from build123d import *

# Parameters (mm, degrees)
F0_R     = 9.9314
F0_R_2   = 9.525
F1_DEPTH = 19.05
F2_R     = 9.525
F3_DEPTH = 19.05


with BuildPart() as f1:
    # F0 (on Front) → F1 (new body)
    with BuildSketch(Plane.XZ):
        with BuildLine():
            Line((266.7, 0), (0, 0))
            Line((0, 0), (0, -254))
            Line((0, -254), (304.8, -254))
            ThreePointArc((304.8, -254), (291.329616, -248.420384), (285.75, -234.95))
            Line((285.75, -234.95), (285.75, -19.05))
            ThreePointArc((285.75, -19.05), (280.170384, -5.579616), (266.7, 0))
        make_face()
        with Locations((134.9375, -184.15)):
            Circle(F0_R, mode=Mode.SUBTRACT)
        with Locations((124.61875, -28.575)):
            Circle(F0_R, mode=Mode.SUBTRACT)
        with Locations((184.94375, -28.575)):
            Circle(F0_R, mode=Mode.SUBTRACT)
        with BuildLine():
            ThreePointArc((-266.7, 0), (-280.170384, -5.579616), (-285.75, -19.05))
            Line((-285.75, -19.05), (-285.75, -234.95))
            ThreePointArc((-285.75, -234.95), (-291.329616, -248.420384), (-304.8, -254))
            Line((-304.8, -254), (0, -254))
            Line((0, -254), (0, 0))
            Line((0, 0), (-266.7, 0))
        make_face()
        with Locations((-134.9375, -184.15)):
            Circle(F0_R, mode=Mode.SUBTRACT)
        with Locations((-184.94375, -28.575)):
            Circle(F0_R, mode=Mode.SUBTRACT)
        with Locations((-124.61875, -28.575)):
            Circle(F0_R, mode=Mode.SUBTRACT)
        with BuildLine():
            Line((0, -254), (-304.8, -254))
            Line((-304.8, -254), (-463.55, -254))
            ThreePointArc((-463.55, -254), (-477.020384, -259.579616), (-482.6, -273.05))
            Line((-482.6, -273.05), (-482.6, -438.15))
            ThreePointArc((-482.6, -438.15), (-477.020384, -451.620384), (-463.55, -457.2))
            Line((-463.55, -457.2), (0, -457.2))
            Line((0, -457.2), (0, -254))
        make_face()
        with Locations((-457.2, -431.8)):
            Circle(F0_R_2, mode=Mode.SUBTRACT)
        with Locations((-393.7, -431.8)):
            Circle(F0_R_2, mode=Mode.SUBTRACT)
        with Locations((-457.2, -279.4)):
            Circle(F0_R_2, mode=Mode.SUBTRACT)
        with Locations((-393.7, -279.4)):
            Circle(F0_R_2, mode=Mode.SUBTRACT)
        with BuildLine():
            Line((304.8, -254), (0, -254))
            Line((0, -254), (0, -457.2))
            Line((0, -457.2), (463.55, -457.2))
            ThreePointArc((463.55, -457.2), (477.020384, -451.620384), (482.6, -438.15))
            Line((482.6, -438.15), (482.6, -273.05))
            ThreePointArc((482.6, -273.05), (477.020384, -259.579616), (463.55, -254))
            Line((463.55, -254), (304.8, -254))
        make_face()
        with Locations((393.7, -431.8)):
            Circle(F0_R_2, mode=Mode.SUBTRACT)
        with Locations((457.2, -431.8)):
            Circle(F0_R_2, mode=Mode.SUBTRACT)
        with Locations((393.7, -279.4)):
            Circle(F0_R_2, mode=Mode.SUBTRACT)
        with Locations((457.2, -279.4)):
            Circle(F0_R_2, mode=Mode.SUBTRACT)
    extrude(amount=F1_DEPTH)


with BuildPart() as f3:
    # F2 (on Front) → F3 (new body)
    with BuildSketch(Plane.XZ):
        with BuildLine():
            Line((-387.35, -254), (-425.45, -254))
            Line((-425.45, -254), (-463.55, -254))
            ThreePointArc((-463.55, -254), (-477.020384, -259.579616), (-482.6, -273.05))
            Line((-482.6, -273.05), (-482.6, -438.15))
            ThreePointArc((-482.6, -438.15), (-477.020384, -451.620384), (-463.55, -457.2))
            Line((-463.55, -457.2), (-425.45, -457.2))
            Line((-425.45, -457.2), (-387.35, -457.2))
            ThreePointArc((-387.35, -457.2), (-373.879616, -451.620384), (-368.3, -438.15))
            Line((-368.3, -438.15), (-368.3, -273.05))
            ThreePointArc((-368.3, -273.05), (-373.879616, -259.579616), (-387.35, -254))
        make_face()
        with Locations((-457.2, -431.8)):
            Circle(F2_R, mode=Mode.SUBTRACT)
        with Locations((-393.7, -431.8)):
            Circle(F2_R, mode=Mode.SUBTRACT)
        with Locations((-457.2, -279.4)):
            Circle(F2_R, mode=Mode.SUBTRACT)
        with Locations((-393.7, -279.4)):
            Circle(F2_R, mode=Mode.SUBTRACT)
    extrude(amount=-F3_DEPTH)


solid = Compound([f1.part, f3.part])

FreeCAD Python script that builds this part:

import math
import FreeCAD as App
import Part
import Sketcher

V = App.Vector
Q = App.Units.Quantity

doc = App.newDocument("Part")
params = doc.addObject("Spreadsheet::Sheet", "Params")
for row, (alias, value) in enumerate([
    ("sketch1_diameter", "0.75 in"),
    ("sketch1_width", "21 in"),
    ("sketch1_radius", "0.75 in"),
    ("sketch1_diameter2", "0.782 in"),
    ("sketch1_width2", "36.5 in"),
    ("pad1_length", "0.75 in"),
    ("sketch2_diameter", "0.75 in"),
    ("sketch2_width", "3 in"),
    ("sketch2_radius", "0.75 in"),
    ("sketch2_height", "6.5 in"),
    ("pad2_length", "0.75 in"),
], start=1):
    params.set(f"A{row}", alias)
    params.set(f"B{row}", "=" + value)
    params.setAlias(f"B{row}", alias)

body = doc.addObject("PartDesign::Body", "Body")

sketch1 = doc.addObject("Sketcher::SketchObject", "Sketch")
body.addObject(sketch1)
sketch1.AttachmentSupport = (doc.XZ_Plane, [""])
sketch1.MapMode = "FlatFace"
sketch1.addGeometry(Part.LineSegment(V(266.7, 0, 0), V(-266.7, 0, 0)), False)
sketch1.addGeometry(Part.ArcOfCircle(Part.Circle(V(-266.699999, -19.050001, 0), V(0, 0, 1), 19.050001), math.radians(90.000002), math.radians(179.999998)), False)
sketch1.addGeometry(Part.LineSegment(V(-285.75, -19.05, 0), V(-285.75, -234.95, 0)), False)
sketch1.addGeometry(Part.ArcOfCircle(Part.Circle(V(-304.800001, -234.949999, 0), V(0, 0, 1), 19.050001), math.radians(-89.999998), math.radians(-0.000002)), False)
sketch1.addGeometry(Part.LineSegment(V(-304.8, -254, 0), V(-463.55, -254, 0)), False)
sketch1.addGeometry(Part.ArcOfCircle(Part.Circle(V(-463.549999, -273.050001, 0), V(0, 0, 1), 19.050001), math.radians(90.000002), math.radians(179.999998)), False)
sketch1.addGeometry(Part.LineSegment(V(-482.6, -273.05, 0), V(-482.6, -438.15, 0)), False)
sketch1.addGeometry(Part.ArcOfCircle(Part.Circle(V(-463.549999, -438.149999, 0), V(0, 0, 1), 19.050001), math.radians(-179.999998), math.radians(-90.000002)), False)
sketch1.addGeometry(Part.LineSegment(V(-463.55, -457.2, 0), V(463.55, -457.2, 0)), False)
sketch1.addGeometry(Part.ArcOfCircle(Part.Circle(V(463.549999, -438.149999, 0), V(0, 0, 1), 19.050001), math.radians(-89.999998), math.radians(-0.000002)), False)
sketch1.addGeometry(Part.LineSegment(V(482.6, -438.15, 0), V(482.6, -273.05, 0)), False)
sketch1.addGeometry(Part.ArcOfCircle(Part.Circle(V(463.549999, -273.050001, 0), V(0, 0, 1), 19.050001), math.radians(0.000002), math.radians(89.999998)), False)
sketch1.addGeometry(Part.LineSegment(V(463.55, -254, 0), V(304.8, -254, 0)), False)
sketch1.addGeometry(Part.ArcOfCircle(Part.Circle(V(304.800001, -234.949999, 0), V(0, 0, 1), 19.050001), math.radians(-179.999998), math.radians(-90.000002)), False)
sketch1.addGeometry(Part.LineSegment(V(285.75, -234.95, 0), V(285.75, -19.05, 0)), False)
sketch1.addGeometry(Part.ArcOfCircle(Part.Circle(V(266.699999, -19.050001, 0), V(0, 0, 1), 19.050001), math.radians(0.000002), math.radians(89.999998)), False)
sketch1.addGeometry(Part.Circle(V(-457.2, -431.8, 0), V(0, 0, 1), 9.525), False)
sketch1.addGeometry(Part.Circle(V(-393.7, -431.8, 0), V(0, 0, 1), 9.525), False)
sketch1.addGeometry(Part.Circle(V(-457.2, -279.4, 0), V(0, 0, 1), 9.525), False)
sketch1.addGeometry(Part.Circle(V(-393.7, -279.4, 0), V(0, 0, 1), 9.525), False)
sketch1.addGeometry(Part.Circle(V(393.7, -431.8, 0), V(0, 0, 1), 9.525), False)
sketch1.addGeometry(Part.Circle(V(457.2, -431.8, 0), V(0, 0, 1), 9.525), False)
sketch1.addGeometry(Part.Circle(V(393.7, -279.4, 0), V(0, 0, 1), 9.525), False)
sketch1.addGeometry(Part.Circle(V(457.2, -279.4, 0), V(0, 0, 1), 9.525), False)
sketch1.addGeometry(Part.Circle(V(-134.9375, -184.15, 0), V(0, 0, 1), 9.9314), False)
sketch1.addGeometry(Part.Circle(V(-184.94375, -28.575, 0), V(0, 0, 1), 9.9314), False)
sketch1.addGeometry(Part.Circle(V(-124.61875, -28.575, 0), V(0, 0, 1), 9.9314), False)
sketch1.addGeometry(Part.Circle(V(134.9375, -184.15, 0), V(0, 0, 1), 9.9314), False)
sketch1.addGeometry(Part.Circle(V(124.61875, -28.575, 0), V(0, 0, 1), 9.9314), False)
sketch1.addGeometry(Part.Circle(V(184.94375, -28.575, 0), V(0, 0, 1), 9.9314), False)
sketch1.addConstraint(Sketcher.Constraint("Tangent", 0, 2, 1, 1))
sketch1.addConstraint(Sketcher.Constraint("Tangent", 1, 2, 2, 1))
sketch1.addConstraint(Sketcher.Constraint("Tangent", 2, 2, 3, 2))
sketch1.addConstraint(Sketcher.Constraint("Tangent", 3, 1, 4, 1))
sketch1.addConstraint(Sketcher.Constraint("Tangent", 4, 2, 5, 1))
sketch1.addConstraint(Sketcher.Constraint("Tangent", 5, 2, 6, 1))
sketch1.addConstraint(Sketcher.Constraint("Tangent", 6, 2, 7, 1))
sketch1.addConstraint(Sketcher.Constraint("Tangent", 7, 2, 8, 1))
sketch1.addConstraint(Sketcher.Constraint("Tangent", 8, 2, 9, 1))
sketch1.addConstraint(Sketcher.Constraint("Tangent", 9, 2, 10, 1))
sketch1.addConstraint(Sketcher.Constraint("Tangent", 10, 2, 11, 1))
sketch1.addConstraint(Sketcher.Constraint("Tangent", 11, 2, 12, 1))
sketch1.addConstraint(Sketcher.Constraint("Tangent", 12, 2, 13, 2))
sketch1.addConstraint(Sketcher.Constraint("Tangent", 13, 1, 14, 1))
sketch1.addConstraint(Sketcher.Constraint("Tangent", 14, 2, 15, 1))
sketch1.addConstraint(Sketcher.Constraint("Tangent", 15, 2, 0, 1))
sketch1.addConstraint(Sketcher.Constraint("Horizontal", 0))
sketch1.addConstraint(Sketcher.Constraint("Vertical", 2))
sketch1.addConstraint(Sketcher.Constraint("Horizontal", 4))
sketch1.addConstraint(Sketcher.Constraint("Vertical", 6))
sketch1.addConstraint(Sketcher.Constraint("Horizontal", 8))
sketch1.addConstraint(Sketcher.Constraint("Vertical", 10))
sketch1.addConstraint(Sketcher.Constraint("Horizontal", 12))
sketch1.addConstraint(Sketcher.Constraint("Vertical", 14))
sketch1.addConstraint(Sketcher.Constraint("Equal", 1, 3))
sketch1.addConstraint(Sketcher.Constraint("Equal", 3, 5))
sketch1.addConstraint(Sketcher.Constraint("Equal", 5, 7))
sketch1.addConstraint(Sketcher.Constraint("Equal", 7, 9))
sketch1.addConstraint(Sketcher.Constraint("Equal", 9, 11))
sketch1.addConstraint(Sketcher.Constraint("Equal", 11, 13))
sketch1.addConstraint(Sketcher.Constraint("Equal", 13, 15))
sketch1.addConstraint(Sketcher.Constraint("Equal", 16, 17))
sketch1.addConstraint(Sketcher.Constraint("Equal", 17, 18))
sketch1.addConstraint(Sketcher.Constraint("Equal", 18, 19))
sketch1.addConstraint(Sketcher.Constraint("Equal", 19, 20))
sketch1.addConstraint(Sketcher.Constraint("Equal", 20, 21))
sketch1.addConstraint(Sketcher.Constraint("Equal", 21, 22))
sketch1.addConstraint(Sketcher.Constraint("Equal", 22, 23))
sketch1.addConstraint(Sketcher.Constraint("Equal", 24, 25))
sketch1.addConstraint(Sketcher.Constraint("Equal", 25, 26))
sketch1.addConstraint(Sketcher.Constraint("Equal", 26, 27))
sketch1.addConstraint(Sketcher.Constraint("Equal", 27, 28))
sketch1.addConstraint(Sketcher.Constraint("Equal", 28, 29))
sketch1.addConstraint(Sketcher.Constraint("Symmetric", 0, 2, 15, 2, -1, 1))
sketch1.addConstraint(Sketcher.Constraint("Symmetric", 5, 3, 11, 3, -2))
sketch1.addConstraint(Sketcher.Constraint("Symmetric", 17, 3, 20, 3, -2))
sketch1.addConstraint(Sketcher.Constraint("Symmetric", 16, 3, 21, 3, -2))
sketch1.addConstraint(Sketcher.Constraint("Symmetric", 19, 3, 22, 3, -2))
sketch1.addConstraint(Sketcher.Constraint("Symmetric", 18, 3, 23, 3, -2))
sketch1.addConstraint(Sketcher.Constraint("Symmetric", 24, 3, 27, 3, -2))
sketch1.addConstraint(Sketcher.Constraint("Symmetric", 26, 3, 28, 3, -2))
sketch1.addConstraint(Sketcher.Constraint("Symmetric", 25, 3, 29, 3, -2))
sketch1.addConstraint(Sketcher.Constraint("Horizontal", 16, 3, 17, 3))
sketch1.addConstraint(Sketcher.Constraint("Horizontal", 18, 3, 19, 3))
sketch1.addConstraint(Sketcher.Constraint("Horizontal", 25, 3, 26, 3))
sketch1.addConstraint(Sketcher.Constraint("Vertical", 16, 3, 18, 3))
sketch1.addConstraint(Sketcher.Constraint("Vertical", 17, 3, 19, 3))
sketch1.addConstraint(Sketcher.Constraint("Diameter", 16, Q("0.75 in")))
sketch1.addConstraint(Sketcher.Constraint("DistanceX", 0, 2, 0, 1, Q("21 in")))
sketch1.addConstraint(Sketcher.Constraint("Radius", 1, Q("0.75 in")))
sketch1.addConstraint(Sketcher.Constraint("Diameter", 24, Q("0.782 in")))
sketch1.addConstraint(Sketcher.Constraint("DistanceX", 8, 1, 8, 2, Q("36.5 in")))
sketch1.addConstraint(Sketcher.Constraint("DistanceY", 2, 2, 2, 1, Q("8.5 in")))
sketch1.addConstraint(Sketcher.Constraint("DistanceY", 6, 2, 6, 1, Q("6.5 in")))
sketch1.addConstraint(Sketcher.Constraint("DistanceX", 16, 3, -1, 1, Q("18 in")))
sketch1.addConstraint(Sketcher.Constraint("DistanceY", 16, 3, -1, 1, Q("17 in")))
sketch1.addConstraint(Sketcher.Constraint("DistanceY", 18, 3, -1, 1, Q("11 in")))
sketch1.addConstraint(Sketcher.Constraint("DistanceX", 17, 3, 1, 3, Q("5 in")))
sketch1.addConstraint(Sketcher.Constraint("DistanceY", 3, 3, 24, 3, Q("2 in")))
sketch1.addConstraint(Sketcher.Constraint("DistanceX", 24, 3, -1, 1, Q("5.3125 in")))
sketch1.addConstraint(Sketcher.Constraint("DistanceX", 25, 3, -1, 1, Q("7.28125 in")))
sketch1.addConstraint(Sketcher.Constraint("DistanceY", 25, 3, -1, 1, Q("1.125 in")))
sketch1.addConstraint(Sketcher.Constraint("DistanceX", 26, 3, -1, 1, Q("4.90625 in")))
sketch1.setExpression("Constraints[57]", "Params.sketch1_diameter")
sketch1.setExpression("Constraints[58]", "Params.sketch1_width")
sketch1.setExpression("Constraints[59]", "Params.sketch1_radius")
sketch1.setExpression("Constraints[60]", "Params.sketch1_diameter2")
sketch1.setExpression("Constraints[61]", "Params.sketch1_width2")
pad1 = doc.addObject("PartDesign::Pad", "Pad")
body.addObject(pad1)
pad1.Profile = sketch1
pad1.setExpression("Length", "Params.pad1_length")
body2 = doc.addObject("PartDesign::Body", "Body001")

sketch2 = doc.addObject("Sketcher::SketchObject", "Sketch001")
body2.addObject(sketch2)
sketch2.AttachmentSupport = (doc.getObject("XZ_Plane001"), [""])
sketch2.MapMode = "FlatFace"
sketch2.addGeometry(Part.LineSegment(V(-387.35, -254, 0), V(-463.55, -254, 0)), False)
sketch2.addGeometry(Part.ArcOfCircle(Part.Circle(V(-463.549999, -273.050001, 0), V(0, 0, 1), 19.050001), math.radians(90.000002), math.radians(179.999998)), False)
sketch2.addGeometry(Part.LineSegment(V(-482.6, -273.05, 0), V(-482.6, -438.15, 0)), False)
sketch2.addGeometry(Part.ArcOfCircle(Part.Circle(V(-463.549999, -438.149999, 0), V(0, 0, 1), 19.050001), math.radians(-179.999998), math.radians(-90.000002)), False)
sketch2.addGeometry(Part.LineSegment(V(-463.55, -457.2, 0), V(-387.35, -457.2, 0)), False)
sketch2.addGeometry(Part.ArcOfCircle(Part.Circle(V(-387.350001, -438.149999, 0), V(0, 0, 1), 19.050001), math.radians(-89.999998), math.radians(-0.000002)), False)
sketch2.addGeometry(Part.LineSegment(V(-368.3, -438.15, 0), V(-368.3, -273.05, 0)), False)
sketch2.addGeometry(Part.ArcOfCircle(Part.Circle(V(-387.350001, -273.050001, 0), V(0, 0, 1), 19.050001), math.radians(0.000002), math.radians(89.999998)), False)
sketch2.addGeometry(Part.Circle(V(-457.2, -431.8, 0), V(0, 0, 1), 9.525), False)
sketch2.addGeometry(Part.Circle(V(-393.7, -431.8, 0), V(0, 0, 1), 9.525), False)
sketch2.addGeometry(Part.Circle(V(-457.2, -279.4, 0), V(0, 0, 1), 9.525), False)
sketch2.addGeometry(Part.Circle(V(-393.7, -279.4, 0), V(0, 0, 1), 9.525), False)
sketch2.addConstraint(Sketcher.Constraint("Tangent", 0, 2, 1, 1))
sketch2.addConstraint(Sketcher.Constraint("Tangent", 1, 2, 2, 1))
sketch2.addConstraint(Sketcher.Constraint("Tangent", 2, 2, 3, 1))
sketch2.addConstraint(Sketcher.Constraint("Tangent", 3, 2, 4, 1))
sketch2.addConstraint(Sketcher.Constraint("Tangent", 4, 2, 5, 1))
sketch2.addConstraint(Sketcher.Constraint("Tangent", 5, 2, 6, 1))
sketch2.addConstraint(Sketcher.Constraint("Tangent", 6, 2, 7, 1))
sketch2.addConstraint(Sketcher.Constraint("Tangent", 7, 2, 0, 1))
sketch2.addConstraint(Sketcher.Constraint("Horizontal", 0))
sketch2.addConstraint(Sketcher.Constraint("Vertical", 2))
sketch2.addConstraint(Sketcher.Constraint("Horizontal", 4))
sketch2.addConstraint(Sketcher.Constraint("Vertical", 6))
sketch2.addConstraint(Sketcher.Constraint("Equal", 1, 3))
sketch2.addConstraint(Sketcher.Constraint("Equal", 3, 5))
sketch2.addConstraint(Sketcher.Constraint("Equal", 5, 7))
sketch2.addConstraint(Sketcher.Constraint("Equal", 8, 9))
sketch2.addConstraint(Sketcher.Constraint("Equal", 9, 10))
sketch2.addConstraint(Sketcher.Constraint("Equal", 10, 11))
sketch2.addConstraint(Sketcher.Constraint("Horizontal", 8, 3, 9, 3))
sketch2.addConstraint(Sketcher.Constraint("Horizontal", 10, 3, 11, 3))
sketch2.addConstraint(Sketcher.Constraint("Vertical", 8, 3, 10, 3))
sketch2.addConstraint(Sketcher.Constraint("Vertical", 9, 3, 11, 3))
sketch2.addConstraint(Sketcher.Constraint("Diameter", 8, Q("0.75 in")))
sketch2.addConstraint(Sketcher.Constraint("DistanceX", 0, 2, 0, 1, Q("3 in")))
sketch2.addConstraint(Sketcher.Constraint("Radius", 1, Q("0.75 in")))
sketch2.addConstraint(Sketcher.Constraint("DistanceY", 2, 2, 2, 1, Q("6.5 in")))
sketch2.addConstraint(Sketcher.Constraint("DistanceX", 8, 3, -1, 1, Q("18 in")))
sketch2.addConstraint(Sketcher.Constraint("DistanceY", 8, 3, -1, 1, Q("17 in")))
sketch2.addConstraint(Sketcher.Constraint("DistanceY", 10, 3, -1, 1, Q("11 in")))
sketch2.addConstraint(Sketcher.Constraint("DistanceY", 0, 2, -1, 1, Q("10 in")))
sketch2.addConstraint(Sketcher.Constraint("DistanceX", 1, 2, -1, 1, Q("19 in")))
sketch2.addConstraint(Sketcher.Constraint("DistanceX", 9, 3, 5, 2, Q("1 in")))
sketch2.setExpression("Constraints[22]", "Params.sketch2_diameter")
sketch2.setExpression("Constraints[23]", "Params.sketch2_width")
sketch2.setExpression("Constraints[24]", "Params.sketch2_radius")
sketch2.setExpression("Constraints[25]", "Params.sketch2_height")
pad2 = doc.addObject("PartDesign::Pad", "Pad001")
body2.addObject(pad2)
pad2.Profile = sketch2
pad2.setExpression("Length", "Params.pad2_length")
pad2.Reversed = True

doc.recompute()
